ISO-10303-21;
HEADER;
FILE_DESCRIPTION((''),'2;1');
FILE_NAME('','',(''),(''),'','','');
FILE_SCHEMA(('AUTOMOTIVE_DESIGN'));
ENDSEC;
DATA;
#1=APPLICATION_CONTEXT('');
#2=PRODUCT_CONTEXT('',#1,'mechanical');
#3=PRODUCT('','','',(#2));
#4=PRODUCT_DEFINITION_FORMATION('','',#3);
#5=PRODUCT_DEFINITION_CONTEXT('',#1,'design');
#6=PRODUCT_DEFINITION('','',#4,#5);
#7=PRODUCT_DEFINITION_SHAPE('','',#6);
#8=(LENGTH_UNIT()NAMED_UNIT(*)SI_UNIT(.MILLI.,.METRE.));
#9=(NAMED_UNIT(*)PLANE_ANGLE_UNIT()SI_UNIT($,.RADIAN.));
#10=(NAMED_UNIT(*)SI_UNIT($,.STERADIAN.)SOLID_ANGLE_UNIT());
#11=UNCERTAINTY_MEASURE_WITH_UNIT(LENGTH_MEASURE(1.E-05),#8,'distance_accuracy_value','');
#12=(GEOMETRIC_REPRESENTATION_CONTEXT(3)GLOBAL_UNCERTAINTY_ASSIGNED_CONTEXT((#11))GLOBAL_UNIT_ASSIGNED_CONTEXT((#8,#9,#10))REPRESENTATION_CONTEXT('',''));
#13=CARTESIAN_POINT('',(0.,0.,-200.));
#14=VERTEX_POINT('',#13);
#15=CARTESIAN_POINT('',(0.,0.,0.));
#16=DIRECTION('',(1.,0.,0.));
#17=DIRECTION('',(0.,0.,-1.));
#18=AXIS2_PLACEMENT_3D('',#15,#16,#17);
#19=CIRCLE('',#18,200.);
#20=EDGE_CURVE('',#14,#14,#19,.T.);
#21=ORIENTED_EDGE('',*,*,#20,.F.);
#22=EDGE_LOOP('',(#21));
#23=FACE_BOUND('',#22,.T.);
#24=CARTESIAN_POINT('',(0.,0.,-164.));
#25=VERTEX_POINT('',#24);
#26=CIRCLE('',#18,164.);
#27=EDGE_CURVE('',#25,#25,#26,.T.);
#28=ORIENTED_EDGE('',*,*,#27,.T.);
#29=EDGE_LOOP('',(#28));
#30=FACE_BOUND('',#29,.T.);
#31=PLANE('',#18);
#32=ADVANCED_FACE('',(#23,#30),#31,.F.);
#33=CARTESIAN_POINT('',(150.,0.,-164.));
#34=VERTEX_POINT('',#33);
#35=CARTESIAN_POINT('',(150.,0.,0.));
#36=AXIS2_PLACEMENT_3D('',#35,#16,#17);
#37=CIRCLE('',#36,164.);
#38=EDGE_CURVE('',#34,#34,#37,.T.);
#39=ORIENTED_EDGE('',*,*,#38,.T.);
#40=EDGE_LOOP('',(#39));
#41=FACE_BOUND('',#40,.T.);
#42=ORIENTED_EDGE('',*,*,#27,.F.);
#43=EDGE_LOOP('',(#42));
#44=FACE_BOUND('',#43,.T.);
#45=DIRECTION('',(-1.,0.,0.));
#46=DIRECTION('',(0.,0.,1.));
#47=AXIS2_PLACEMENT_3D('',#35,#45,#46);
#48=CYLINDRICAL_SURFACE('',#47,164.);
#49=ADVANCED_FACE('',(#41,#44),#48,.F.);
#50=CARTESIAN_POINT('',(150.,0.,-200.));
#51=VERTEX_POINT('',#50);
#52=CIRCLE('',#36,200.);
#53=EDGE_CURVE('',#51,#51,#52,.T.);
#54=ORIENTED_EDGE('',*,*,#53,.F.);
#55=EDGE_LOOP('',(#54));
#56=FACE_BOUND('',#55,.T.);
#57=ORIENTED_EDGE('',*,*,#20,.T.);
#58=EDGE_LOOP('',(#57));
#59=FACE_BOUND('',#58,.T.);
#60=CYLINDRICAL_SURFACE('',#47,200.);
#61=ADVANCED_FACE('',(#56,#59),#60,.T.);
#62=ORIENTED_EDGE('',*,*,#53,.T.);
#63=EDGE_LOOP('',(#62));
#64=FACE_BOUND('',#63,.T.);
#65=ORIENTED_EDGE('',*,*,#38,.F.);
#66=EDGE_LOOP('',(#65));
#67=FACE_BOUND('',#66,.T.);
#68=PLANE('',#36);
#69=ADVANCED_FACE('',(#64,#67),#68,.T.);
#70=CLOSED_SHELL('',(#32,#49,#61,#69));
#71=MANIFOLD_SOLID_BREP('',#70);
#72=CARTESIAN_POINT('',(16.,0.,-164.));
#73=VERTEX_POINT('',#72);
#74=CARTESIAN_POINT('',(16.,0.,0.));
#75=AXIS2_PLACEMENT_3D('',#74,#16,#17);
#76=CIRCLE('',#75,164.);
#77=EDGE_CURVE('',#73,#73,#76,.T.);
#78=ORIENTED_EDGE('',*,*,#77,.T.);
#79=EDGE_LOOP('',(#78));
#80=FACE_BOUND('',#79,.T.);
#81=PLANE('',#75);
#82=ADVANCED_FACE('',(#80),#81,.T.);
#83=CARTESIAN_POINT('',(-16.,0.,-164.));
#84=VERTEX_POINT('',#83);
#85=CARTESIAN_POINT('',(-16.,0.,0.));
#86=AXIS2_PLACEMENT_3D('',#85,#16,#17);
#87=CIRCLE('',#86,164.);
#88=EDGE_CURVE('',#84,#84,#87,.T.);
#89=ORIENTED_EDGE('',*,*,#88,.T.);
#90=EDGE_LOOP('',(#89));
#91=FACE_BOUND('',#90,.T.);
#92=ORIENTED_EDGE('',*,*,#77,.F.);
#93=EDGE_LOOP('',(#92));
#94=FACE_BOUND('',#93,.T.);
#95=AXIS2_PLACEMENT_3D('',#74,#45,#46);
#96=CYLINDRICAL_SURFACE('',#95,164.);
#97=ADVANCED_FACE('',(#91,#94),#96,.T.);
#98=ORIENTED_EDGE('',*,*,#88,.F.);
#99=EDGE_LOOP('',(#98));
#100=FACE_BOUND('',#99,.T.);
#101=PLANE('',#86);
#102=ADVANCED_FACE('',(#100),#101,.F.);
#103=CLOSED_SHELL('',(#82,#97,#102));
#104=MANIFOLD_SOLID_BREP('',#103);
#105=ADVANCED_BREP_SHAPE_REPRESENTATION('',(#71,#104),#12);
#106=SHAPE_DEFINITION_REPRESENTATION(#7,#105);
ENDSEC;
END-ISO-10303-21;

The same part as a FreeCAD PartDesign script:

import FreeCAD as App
import Part
import Sketcher

V = App.Vector

doc = App.newDocument("Part")
body = doc.addObject("PartDesign::Body", "Body")

# Sketch on YZ plane
sketch1 = doc.addObject("Sketcher::SketchObject", "Sketch")
body.addObject(sketch1)
sketch1.AttachmentSupport = (doc.YZ_Plane, [""])
sketch1.MapMode = "FlatFace"
sketch1.addGeometry(Part.Circle(V(0, 0, 0), V(0, 0, 1), 164), False)
sketch1.addConstraint([
    Sketcher.Constraint("Coincident", 0, 3, -1, 1),
    Sketcher.Constraint("Diameter", 0, 328.0),
])
pad1 = doc.addObject("PartDesign::Pad", "Pad")
body.addObject(pad1)
pad1.Profile = sketch1
pad1.Length = 32
pad1.Midplane = True
body2 = doc.addObject("PartDesign::Body", "Body001")

# Sketch on YZ plane
sketch2 = doc.addObject("Sketcher::SketchObject", "Sketch001")
body2.addObject(sketch2)
sketch2.AttachmentSupport = (doc.getObject("YZ_Plane001"), [""])
sketch2.MapMode = "FlatFace"
sketch2.addGeometry([
    Part.Circle(V(0, 0, 0), V(0, 0, 1), 200),
    Part.Circle(V(0, 0, 0), V(0, 0, 1), 164),
], False)
sketch2.addConstraint([
    Sketcher.Constraint("Coincident", 0, 3, -1, 1),
    Sketcher.Constraint("Coincident", 1, 3, -1, 1),
    Sketcher.Constraint("Diameter", 0, 400.0),
    Sketcher.Constraint("Diameter", 1, 328.0),
])
pad2 = doc.addObject("PartDesign::Pad", "Pad001")
body2.addObject(pad2)
pad2.Profile = sketch2
pad2.Length = 150

doc.recompute()
